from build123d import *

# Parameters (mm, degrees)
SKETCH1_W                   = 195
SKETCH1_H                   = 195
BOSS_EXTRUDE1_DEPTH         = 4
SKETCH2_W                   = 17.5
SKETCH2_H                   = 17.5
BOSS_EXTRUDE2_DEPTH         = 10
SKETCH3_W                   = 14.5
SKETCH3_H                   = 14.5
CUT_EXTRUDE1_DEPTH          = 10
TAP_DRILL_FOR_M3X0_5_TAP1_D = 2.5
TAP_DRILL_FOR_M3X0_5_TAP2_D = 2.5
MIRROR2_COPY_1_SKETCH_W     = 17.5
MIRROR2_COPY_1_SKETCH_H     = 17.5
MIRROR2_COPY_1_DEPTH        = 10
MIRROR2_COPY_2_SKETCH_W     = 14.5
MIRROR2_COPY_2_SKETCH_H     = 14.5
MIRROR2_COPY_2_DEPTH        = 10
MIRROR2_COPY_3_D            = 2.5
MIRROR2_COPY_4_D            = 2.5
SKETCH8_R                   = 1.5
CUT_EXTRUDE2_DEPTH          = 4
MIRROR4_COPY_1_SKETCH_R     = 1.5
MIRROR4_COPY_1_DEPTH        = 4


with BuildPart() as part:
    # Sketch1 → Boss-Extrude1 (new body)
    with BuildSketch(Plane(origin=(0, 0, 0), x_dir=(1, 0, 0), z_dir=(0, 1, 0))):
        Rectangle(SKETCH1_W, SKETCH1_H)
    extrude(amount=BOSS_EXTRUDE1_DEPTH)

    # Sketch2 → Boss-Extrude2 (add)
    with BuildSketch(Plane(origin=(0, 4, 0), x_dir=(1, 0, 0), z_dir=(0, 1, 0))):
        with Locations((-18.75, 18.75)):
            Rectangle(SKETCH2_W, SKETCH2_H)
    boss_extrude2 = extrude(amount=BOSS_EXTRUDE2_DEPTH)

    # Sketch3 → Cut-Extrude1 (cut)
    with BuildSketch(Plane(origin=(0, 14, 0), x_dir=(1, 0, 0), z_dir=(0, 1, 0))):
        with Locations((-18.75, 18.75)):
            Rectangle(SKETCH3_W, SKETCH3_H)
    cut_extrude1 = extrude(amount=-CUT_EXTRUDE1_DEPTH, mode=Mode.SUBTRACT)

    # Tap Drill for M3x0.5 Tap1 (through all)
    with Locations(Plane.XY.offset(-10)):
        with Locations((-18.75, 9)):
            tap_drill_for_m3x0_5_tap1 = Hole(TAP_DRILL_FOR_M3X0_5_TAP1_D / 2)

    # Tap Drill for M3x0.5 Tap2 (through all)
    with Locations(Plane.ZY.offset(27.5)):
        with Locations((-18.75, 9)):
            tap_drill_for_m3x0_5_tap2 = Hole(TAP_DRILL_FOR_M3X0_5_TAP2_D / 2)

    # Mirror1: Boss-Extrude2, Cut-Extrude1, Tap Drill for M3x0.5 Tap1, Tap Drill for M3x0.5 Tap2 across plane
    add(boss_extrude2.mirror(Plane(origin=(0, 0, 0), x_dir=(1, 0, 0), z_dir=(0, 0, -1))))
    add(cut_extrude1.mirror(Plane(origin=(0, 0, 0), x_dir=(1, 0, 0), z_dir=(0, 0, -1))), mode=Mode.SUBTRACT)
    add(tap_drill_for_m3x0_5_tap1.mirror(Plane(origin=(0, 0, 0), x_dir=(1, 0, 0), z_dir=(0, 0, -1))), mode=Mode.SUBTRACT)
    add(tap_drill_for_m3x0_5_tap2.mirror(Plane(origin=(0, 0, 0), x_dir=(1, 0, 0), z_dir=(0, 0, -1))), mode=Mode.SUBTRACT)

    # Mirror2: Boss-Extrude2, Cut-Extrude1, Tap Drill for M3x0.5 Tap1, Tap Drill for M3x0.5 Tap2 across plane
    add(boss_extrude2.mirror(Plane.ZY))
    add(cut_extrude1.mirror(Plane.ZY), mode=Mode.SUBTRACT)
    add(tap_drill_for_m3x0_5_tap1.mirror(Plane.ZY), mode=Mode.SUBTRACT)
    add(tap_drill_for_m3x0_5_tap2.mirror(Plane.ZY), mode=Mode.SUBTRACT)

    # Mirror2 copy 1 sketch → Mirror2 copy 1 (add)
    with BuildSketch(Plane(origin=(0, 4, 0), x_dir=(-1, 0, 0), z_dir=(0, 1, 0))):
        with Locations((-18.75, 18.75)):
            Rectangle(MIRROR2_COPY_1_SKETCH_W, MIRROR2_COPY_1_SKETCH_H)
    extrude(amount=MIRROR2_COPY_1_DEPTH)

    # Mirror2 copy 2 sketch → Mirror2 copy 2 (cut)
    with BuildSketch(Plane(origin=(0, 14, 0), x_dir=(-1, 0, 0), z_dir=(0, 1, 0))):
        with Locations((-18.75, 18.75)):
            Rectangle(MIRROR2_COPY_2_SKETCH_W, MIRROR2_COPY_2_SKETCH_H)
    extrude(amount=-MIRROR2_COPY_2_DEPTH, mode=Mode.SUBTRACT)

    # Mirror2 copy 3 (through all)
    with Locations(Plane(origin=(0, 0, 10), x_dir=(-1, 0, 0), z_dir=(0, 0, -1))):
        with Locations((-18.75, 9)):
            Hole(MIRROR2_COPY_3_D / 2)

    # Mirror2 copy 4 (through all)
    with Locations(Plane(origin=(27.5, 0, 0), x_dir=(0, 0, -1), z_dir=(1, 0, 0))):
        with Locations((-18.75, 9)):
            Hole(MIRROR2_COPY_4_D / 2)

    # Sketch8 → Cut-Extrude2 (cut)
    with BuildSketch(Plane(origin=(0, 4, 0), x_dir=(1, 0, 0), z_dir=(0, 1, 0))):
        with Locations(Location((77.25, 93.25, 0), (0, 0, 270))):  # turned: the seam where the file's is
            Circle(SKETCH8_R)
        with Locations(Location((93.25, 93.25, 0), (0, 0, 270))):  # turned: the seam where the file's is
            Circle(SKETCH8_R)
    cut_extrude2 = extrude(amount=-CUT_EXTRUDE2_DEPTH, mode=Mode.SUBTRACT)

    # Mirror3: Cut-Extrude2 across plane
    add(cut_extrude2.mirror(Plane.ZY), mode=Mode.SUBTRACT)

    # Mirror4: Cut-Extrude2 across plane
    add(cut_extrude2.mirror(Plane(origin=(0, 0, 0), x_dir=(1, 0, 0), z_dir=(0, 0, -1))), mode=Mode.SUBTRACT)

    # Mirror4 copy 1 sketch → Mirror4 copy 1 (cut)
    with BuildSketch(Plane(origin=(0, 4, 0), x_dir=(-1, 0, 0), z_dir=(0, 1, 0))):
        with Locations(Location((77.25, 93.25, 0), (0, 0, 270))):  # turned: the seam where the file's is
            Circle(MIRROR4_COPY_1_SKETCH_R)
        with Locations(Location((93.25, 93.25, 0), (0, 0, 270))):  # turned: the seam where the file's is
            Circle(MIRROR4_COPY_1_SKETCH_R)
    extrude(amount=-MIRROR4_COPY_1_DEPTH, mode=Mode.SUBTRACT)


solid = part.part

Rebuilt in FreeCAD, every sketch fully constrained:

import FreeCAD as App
import Part
import Sketcher

doc = App.newDocument("Part")
body = doc.addObject("PartDesign::Body", "Body")

# Sketch on XZ plane
sketch1 = body.newObject("Sketcher::SketchObject", "Sketch")
sketch1.AttachmentSupport = (doc.getObject("XZ_Plane"), [""])
sketch1.MapMode = "FlatFace"
sketch1.addGeometry(Part.LineSegment(App.Vector(-97.5, -97.5, 0), App.Vector(-97.5, 97.5, 0)), False)
sketch1.addGeometry(Part.LineSegment(App.Vector(-97.5, 97.5, 0), App.Vector(97.5, 97.5, 0)), False)
sketch1.addGeometry(Part.LineSegment(App.Vector(97.5, 97.5, 0), App.Vector(97.5, -97.5, 0)), False)
sketch1.addGeometry(Part.LineSegment(App.Vector(97.5, -97.5, 0), App.Vector(-97.5, -97.5, 0)), False)
sketch1.addConstraint(Sketcher.Constraint("Coincident", 0, 2, 1, 1))
sketch1.addConstraint(Sketcher.Constraint("Coincident", 1, 2, 2, 1))
sketch1.addConstraint(Sketcher.Constraint("Coincident", 2, 2, 3, 1))
sketch1.addConstraint(Sketcher.Constraint("Coincident", 3, 2, 0, 1))
sketch1.addConstraint(Sketcher.Constraint("Vertical", 0))
sketch1.addConstraint(Sketcher.Constraint("Horizontal", 1))
sketch1.addConstraint(Sketcher.Constraint("Vertical", 2))
sketch1.addConstraint(Sketcher.Constraint("Horizontal", 3))
sketch1.addConstraint(Sketcher.Constraint("Symmetric", 0, 2, 2, 2, -1, 1))
sketch1.addConstraint(Sketcher.Constraint("Equal", 3, 0))
sketch1.addConstraint(Sketcher.Constraint("DistanceX", 1, 1, 1, 2, 195.0))
pad1 = body.newObject("PartDesign::Pad", "Pad")
pad1.Profile = sketch1
pad1.Length = 4
pad1.Reversed = True

# Sketch on XZ plane
sketch2 = body.newObject("Sketcher::SketchObject", "Sketch001")
sketch2.AttachmentSupport = (doc.getObject("XZ_Plane"), [""])
sketch2.MapMode = "FlatFace"
sketch2.AttachmentOffset = App.Placement(App.Vector(0, 0, -4), App.Rotation())
sketch2.addGeometry(Part.LineSegment(App.Vector(-27.5, -27.5, 0), App.Vector(-27.5, -10, 0)), False)
sketch2.addGeometry(Part.LineSegment(App.Vector(-27.5, -10, 0), App.Vector(-10, -10, 0)), False)
sketch2.addGeometry(Part.LineSegment(App.Vector(-10, -10, 0), App.Vector(-10, -27.5, 0)), False)
sketch2.addGeometry(Part.LineSegment(App.Vector(-10, -27.5, 0), App.Vector(-27.5, -27.5, 0)), False)
sketch2.addConstraint(Sketcher.Constraint("Coincident", 0, 2, 1, 1))
sketch2.addConstraint(Sketcher.Constraint("Coincident", 1, 2, 2, 1))
sketch2.addConstraint(Sketcher.Constraint("Coincident", 2, 2, 3, 1))
sketch2.addConstraint(Sketcher.Constraint("Coincident", 3, 2, 0, 1))
sketch2.addConstraint(Sketcher.Constraint("Vertical", 0))
sketch2.addConstraint(Sketcher.Constraint("Horizontal", 1))
sketch2.addConstraint(Sketcher.Constraint("Vertical", 2))
sketch2.addConstraint(Sketcher.Constraint("Horizontal", 3))
sketch2.addConstraint(Sketcher.Constraint("Equal", 3, 0))
sketch2.addConstraint(Sketcher.Constraint("DistanceX", 1, 1, 1, 2, 17.5))
sketch2.addConstraint(Sketcher.Constraint("DistanceY", 0, 2, -1, 1, 10.0))
sketch2.addConstraint(Sketcher.Constraint("DistanceX", 1, 2, -1, 1, 10.0))
pad2 = body.newObject("PartDesign::Pad", "Pad001")
pad2.Profile = sketch2
pad2.Length = 10
pad2.Reversed = True

# Sketch on XZ plane
sketch3 = body.newObject("Sketcher::SketchObject", "Sketch002")
sketch3.AttachmentSupport = (doc.getObject("XZ_Plane"), [""])
sketch3.MapMode = "FlatFace"
sketch3.AttachmentOffset = App.Placement(App.Vector(0, 0, -14), App.Rotation())
sketch3.addGeometry(Part.LineSegment(App.Vector(-26, -26, 0), App.Vector(-26, -11.5, 0)), False)
sketch3.addGeometry(Part.LineSegment(App.Vector(-26, -11.5, 0), App.Vector(-11.5, -11.5, 0)), False)
sketch3.addGeometry(Part.LineSegment(App.Vector(-11.5, -11.5, 0), App.Vector(-11.5, -26, 0)), False)
sketch3.addGeometry(Part.LineSegment(App.Vector(-11.5, -26, 0), App.Vector(-26, -26, 0)), False)
sketch3.addConstraint(Sketcher.Constraint("Coincident", 0, 2, 1, 1))
sketch3.addConstraint(Sketcher.Constraint("Coincident", 1, 2, 2, 1))
sketch3.addConstraint(Sketcher.Constraint("Coincident", 2, 2, 3, 1))
sketch3.addConstraint(Sketcher.Constraint("Coincident", 3, 2, 0, 1))
sketch3.addConstraint(Sketcher.Constraint("Vertical", 0))
sketch3.addConstraint(Sketcher.Constraint("Horizontal", 1))
sketch3.addConstraint(Sketcher.Constraint("Vertical", 2))
sketch3.addConstraint(Sketcher.Constraint("Horizontal", 3))
sketch3.addConstraint(Sketcher.Constraint("Equal", 3, 0))
sketch3.addConstraint(Sketcher.Constraint("DistanceX", 1, 1, 1, 2, 14.5))
sketch3.addConstraint(Sketcher.Constraint("DistanceX", 0, 2, -1, 1, 26.0))
sketch3.addConstraint(Sketcher.Constraint("DistanceY", 2, 2, -1, 1, 26.0))
pocket1 = body.newObject("PartDesign::Pocket", "Pocket")
pocket1.Profile = sketch3
pocket1.Length = 10
pocket1.Reversed = True

# Sketch on XY plane
sketch4 = body.newObject("Sketcher::SketchObject", "Sketch003")
sketch4.AttachmentSupport = (doc.getObject("XY_Plane"), [""])
sketch4.MapMode = "FlatFace"
sketch4.AttachmentOffset = App.Placement(App.Vector(0, 0, -10), App.Rotation())
sketch4.addGeometry(Part.Circle(App.Vector(-18.75, 9, 0), App.Vector(0, 0, 1), 1.25), False)
sketch4.addConstraint(Sketcher.Constraint("Diameter", 0, 2.5))
sketch4.addConstraint(Sketcher.Constraint("DistanceY", -1, 1, 0, 3, 9.0))
sketch4.addConstraint(Sketcher.Constraint("DistanceX", 0, 3, -1, 1, 18.75))
doc.recompute()
hole = body.newObject("PartDesign::Hole", "Hole")
hole.Profile = sketch4
hole.ThreadType = "None"
hole.Diameter = 2.5
hole.DepthType = "ThroughAll"

# Sketch on YZ plane
sketch5 = body.newObject("Sketcher::SketchObject", "Sketch004")
sketch5.AttachmentSupport = (doc.getObject("YZ_Plane"), [""])
sketch5.MapMode = "FlatFace"
sketch5.AttachmentOffset = App.Placement(App.Vector(0, 0, -27.5), App.Rotation())
sketch5.addGeometry(Part.Circle(App.Vector(9, -18.75, 0), App.Vector(0, 0, 1), 1.25), False)
sketch5.addConstraint(Sketcher.Constraint("Diameter", 0, 2.5))
sketch5.addConstraint(Sketcher.Constraint("DistanceX", -1, 1, 0, 3, 9.0))
sketch5.addConstraint(Sketcher.Constraint("DistanceY", 0, 3, -1, 1, 18.75))
doc.recompute()
hole2 = body.newObject("PartDesign::Hole", "Hole001")
hole2.Profile = sketch5
hole2.ThreadType = "None"
hole2.Diameter = 2.5
hole2.DepthType = "ThroughAll"
hole2.Reversed = True
doc.recompute()

mirrored = body.newObject("PartDesign::Mirrored", "Mirrored")
mirrored.Originals = [pad2, pocket1, hole, hole2]
mirrored.MirrorPlane = (doc.getObject("XY_Plane"), [""])
body.Tip = mirrored
doc.recompute()

mirrored2 = body.newObject("PartDesign::Mirrored", "Mirrored001")
mirrored2.Originals = [pad2, pocket1, hole, hole2]
mirrored2.MirrorPlane = (doc.getObject("YZ_Plane"), [""])
body.Tip = mirrored2

# Sketch on XZ plane
sketch6 = body.newObject("Sketcher::SketchObject", "Sketch005")
sketch6.AttachmentSupport = (doc.getObject("XZ_Plane"), [""])
sketch6.MapMode = "FlatFace"
sketch6.AttachmentOffset = App.Placement(App.Vector(0, 0, -4), App.Rotation())
sketch6.addGeometry(Part.LineSegment(App.Vector(27.5, 27.5, 0), App.Vector(27.5, 10, 0)), False)
sketch6.addGeometry(Part.LineSegment(App.Vector(27.5, 10, 0), App.Vector(10, 10, 0)), False)
sketch6.addGeometry(Part.LineSegment(App.Vector(10, 10, 0), App.Vector(10, 27.5, 0)), False)
sketch6.addGeometry(Part.LineSegment(App.Vector(10, 27.5, 0), App.Vector(27.5, 27.5, 0)), False)
sketch6.addConstraint(Sketcher.Constraint("Coincident", 0, 2, 1, 1))
sketch6.addConstraint(Sketcher.Constraint("Coincident", 1, 2, 2, 1))
sketch6.addConstraint(Sketcher.Constraint("Coincident", 2, 2, 3, 1))
sketch6.addConstraint(Sketcher.Constraint("Coincident", 3, 2, 0, 1))
sketch6.addConstraint(Sketcher.Constraint("Vertical", 0))
sketch6.addConstraint(Sketcher.Constraint("Horizontal", 1))
sketch6.addConstraint(Sketcher.Constraint("Vertical", 2))
sketch6.addConstraint(Sketcher.Constraint("Horizontal", 3))
sketch6.addConstraint(Sketcher.Constraint("Equal", 3, 0))
sketch6.addConstraint(Sketcher.Constraint("DistanceX", 1, 2, 1, 1, 17.5))
sketch6.addConstraint(Sketcher.Constraint("DistanceY", -1, 1, 0, 2, 10.0))
sketch6.addConstraint(Sketcher.Constraint("DistanceX", -1, 1, 1, 2, 10.0))
pad3 = body.newObject("PartDesign::Pad", "Pad002")
pad3.Profile = sketch6
pad3.Length = 10
pad3.Reversed = True

# Sketch on XZ plane
sketch7 = body.newObject("Sketcher::SketchObject", "Sketch006")
sketch7.AttachmentSupport = (doc.getObject("XZ_Plane"), [""])
sketch7.MapMode = "FlatFace"
sketch7.AttachmentOffset = App.Placement(App.Vector(0, 0, -14), App.Rotation())
sketch7.addGeometry(Part.LineSegment(App.Vector(26, 26, 0), App.Vector(26, 11.5, 0)), False)
sketch7.addGeometry(Part.LineSegment(App.Vector(26, 11.5, 0), App.Vector(11.5, 11.5, 0)), False)
sketch7.addGeometry(Part.LineSegment(App.Vector(11.5, 11.5, 0), App.Vector(11.5, 26, 0)), False)
sketch7.addGeometry(Part.LineSegment(App.Vector(11.5, 26, 0), App.Vector(26, 26, 0)), False)
sketch7.addConstraint(Sketcher.Constraint("Coincident", 0, 2, 1, 1))
sketch7.addConstraint(Sketcher.Constraint("Coincident", 1, 2, 2, 1))
sketch7.addConstraint(Sketcher.Constraint("Coincident", 2, 2, 3, 1))
sketch7.addConstraint(Sketcher.Constraint("Coincident", 3, 2, 0, 1))
sketch7.addConstraint(Sketcher.Constraint("Vertical", 0))
sketch7.addConstraint(Sketcher.Constraint("Horizontal", 1))
sketch7.addConstraint(Sketcher.Constraint("Vertical", 2))
sketch7.addConstraint(Sketcher.Constraint("Horizontal", 3))
sketch7.addConstraint(Sketcher.Constraint("Equal", 3, 0))
sketch7.addConstraint(Sketcher.Constraint("DistanceX", 1, 2, 1, 1, 14.5))
sketch7.addConstraint(Sketcher.Constraint("DistanceX", -1, 1, 0, 2, 26.0))
sketch7.addConstraint(Sketcher.Constraint("DistanceY", -1, 1, 2, 2, 26.0))
pocket2 = body.newObject("PartDesign::Pocket", "Pocket001")
pocket2.Profile = sketch7
pocket2.Length = 10
pocket2.Reversed = True

# Sketch on XY plane
sketch8 = body.newObject("Sketcher::SketchObject", "Sketch007")
sketch8.AttachmentSupport = (doc.getObject("XY_Plane"), [""])
sketch8.MapMode = "FlatFace"
sketch8.AttachmentOffset = App.Placement(App.Vector(0, 0, 10), App.Rotation())
sketch8.addGeometry(Part.Circle(App.Vector(18.75, 9, 0), App.Vector(0, 0, 1), 1.25), False)
sketch8.addConstraint(Sketcher.Constraint("Diameter", 0, 2.5))
sketch8.addConstraint(Sketcher.Constraint("DistanceY", -1, 1, 0, 3, 9.0))
sketch8.addConstraint(Sketcher.Constraint("DistanceX", -1, 1, 0, 3, 18.75))
doc.recompute()
hole3 = body.newObject("PartDesign::Hole", "Hole002")
hole3.Profile = sketch8
hole3.ThreadType = "None"
hole3.Diameter = 2.5
hole3.DepthType = "ThroughAll"
hole3.Reversed = True

# Sketch on YZ plane
sketch9 = body.newObject("Sketcher::SketchObject", "Sketch008")
sketch9.AttachmentSupport = (doc.getObject("YZ_Plane"), [""])
sketch9.MapMode = "FlatFace"
sketch9.AttachmentOffset = App.Placement(App.Vector(0, 0, 27.5), App.Rotation())
sketch9.addGeometry(Part.Circle(App.Vector(9, 18.75, 0), App.Vector(0, 0, 1), 1.25), False)
sketch9.addConstraint(Sketcher.Constraint("Diameter", 0, 2.5))
sketch9.addConstraint(Sketcher.Constraint("DistanceX", -1, 1, 0, 3, 9.0))
sketch9.addConstraint(Sketcher.Constraint("DistanceY", -1, 1, 0, 3, 18.75))
doc.recompute()
hole4 = body.newObject("PartDesign::Hole", "Hole003")
hole4.Profile = sketch9
hole4.ThreadType = "None"
hole4.Diameter = 2.5
hole4.DepthType = "ThroughAll"

# Sketch on XZ plane
sketch10 = body.newObject("Sketcher::SketchObject", "Sketch009")
sketch10.AttachmentSupport = (doc.getObject("XZ_Plane"), [""])
sketch10.MapMode = "FlatFace"
sketch10.AttachmentOffset = App.Placement(App.Vector(0, 0, -4), App.Rotation())
sketch10.addGeometry(Part.Circle(App.Vector(77.25, -93.25, 0), App.Vector(0, 0, 1), 1.5), False)
sketch10.addGeometry(Part.Circle(App.Vector(93.25, -93.25, 0), App.Vector(0, 0, 1), 1.5), False)
sketch10.addConstraint(Sketcher.Constraint("Equal", 0, 1))
sketch10.addConstraint(Sketcher.Constraint("Horizontal", 0, 3, 1, 3))
sketch10.addConstraint(Sketcher.Constraint("Diameter", 0, 3.0))
sketch10.addConstraint(Sketcher.Constraint("DistanceX", 0, 3, 1, 3, 16.0))
sketch10.addConstraint(Sketcher.Constraint("DistanceX", -1, 1, 0, 3, 77.25))
sketch10.addConstraint(Sketcher.Constraint("DistanceY", 0, 3, -1, 1, 93.25))
pocket3 = body.newObject("PartDesign::Pocket", "Pocket002")
pocket3.Profile = sketch10
pocket3.Length = 4
pocket3.Reversed = True
doc.recompute()

mirrored3 = body.newObject("PartDesign::Mirrored", "Mirrored002")
mirrored3.Originals = [pocket3]
mirrored3.MirrorPlane = (doc.getObject("YZ_Plane"), [""])
body.Tip = mirrored3
doc.recompute()

mirrored4 = body.newObject("PartDesign::Mirrored", "Mirrored003")
mirrored4.Originals = [pocket3]
mirrored4.MirrorPlane = (doc.getObject("XY_Plane"), [""])
body.Tip = mirrored4

# Sketch on XZ plane
sketch11 = body.newObject("Sketcher::SketchObject", "Sketch010")
sketch11.AttachmentSupport = (doc.getObject("XZ_Plane"), [""])
sketch11.MapMode = "FlatFace"
sketch11.AttachmentOffset = App.Placement(App.Vector(0, 0, -4), App.Rotation())
sketch11.addGeometry(Part.Circle(App.Vector(-77.25, 93.25, 0), App.Vector(0, 0, 1), 1.5), False)
sketch11.addGeometry(Part.Circle(App.Vector(-93.25, 93.25, 0), App.Vector(0, 0, 1), 1.5), False)
sketch11.addConstraint(Sketcher.Constraint("Equal", 0, 1))
sketch11.addConstraint(Sketcher.Constraint("Horizontal", 0, 3, 1, 3))
sketch11.addConstraint(Sketcher.Constraint("Diameter", 0, 3.0))
sketch11.addConstraint(Sketcher.Constraint("DistanceX", 1, 3, 0, 3, 16.0))
sketch11.addConstraint(Sketcher.Constraint("DistanceX", 0, 3, -1, 1, 77.25))
sketch11.addConstraint(Sketcher.Constraint("DistanceY", -1, 1, 0, 3, 93.25))
pocket4 = body.newObject("PartDesign::Pocket", "Pocket003")
pocket4.Profile = sketch11
pocket4.Length = 4
pocket4.Reversed = True

doc.recompute()
